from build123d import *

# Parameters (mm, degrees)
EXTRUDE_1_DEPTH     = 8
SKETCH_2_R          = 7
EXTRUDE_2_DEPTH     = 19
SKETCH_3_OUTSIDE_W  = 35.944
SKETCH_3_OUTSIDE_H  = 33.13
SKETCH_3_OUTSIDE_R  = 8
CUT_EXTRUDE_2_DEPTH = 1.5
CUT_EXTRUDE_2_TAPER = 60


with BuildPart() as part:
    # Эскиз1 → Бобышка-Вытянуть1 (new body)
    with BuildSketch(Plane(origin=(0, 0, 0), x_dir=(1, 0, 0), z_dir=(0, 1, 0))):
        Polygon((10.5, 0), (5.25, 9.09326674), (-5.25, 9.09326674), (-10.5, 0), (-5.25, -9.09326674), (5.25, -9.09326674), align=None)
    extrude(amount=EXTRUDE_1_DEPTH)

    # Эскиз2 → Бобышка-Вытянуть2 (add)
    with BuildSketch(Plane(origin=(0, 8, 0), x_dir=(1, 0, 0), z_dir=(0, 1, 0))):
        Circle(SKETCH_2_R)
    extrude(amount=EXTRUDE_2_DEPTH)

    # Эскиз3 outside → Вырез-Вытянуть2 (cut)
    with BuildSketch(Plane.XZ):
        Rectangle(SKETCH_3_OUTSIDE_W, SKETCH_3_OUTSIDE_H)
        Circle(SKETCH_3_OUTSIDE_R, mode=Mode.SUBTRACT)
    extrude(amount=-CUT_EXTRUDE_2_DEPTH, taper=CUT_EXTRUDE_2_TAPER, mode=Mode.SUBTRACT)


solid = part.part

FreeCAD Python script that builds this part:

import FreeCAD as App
import Part
import Sketcher

V = App.Vector
Q = App.Units.Quantity

doc = App.newDocument("Part")
params = doc.addObject("Spreadsheet::Sheet", "Params")
for row, (alias, value) in enumerate([
    ("sketch1_width", "10.5 mm"),
    ("pad1_length", "8 mm"),
    ("sketch2_diameter", "14 mm"),
    ("pad2_length", "19 mm"),
    ("sketch3_diameter", "16 mm"),
    ("sketch3_height", "33.13 mm"),
    ("pocket1_length", "1.5 mm"),
    ("pocket1_taper", "60 deg"),
], start=1):
    params.set(f"A{row}", alias)
    params.set(f"B{row}", "=" + value)
    params.setAlias(f"B{row}", alias)

body = doc.addObject("PartDesign::Body", "Body")

sketch1 = body.newObject("Sketcher::SketchObject", "Sketch")
sketch1.AttachmentSupport = (doc.getObject("XZ_Plane"), [""])
sketch1.MapMode = "FlatFace"
sketch1.addGeometry([
    Part.LineSegment(V(10, 0, 0), V(5, -9, 0)),
    Part.LineSegment(V(5, -9, 0), V(-5, -9, 0)),
    Part.LineSegment(V(-5, -9, 0), V(-10, 0, 0)),
    Part.LineSegment(V(-10, 0, 0), V(-5, 9, 0)),
    Part.LineSegment(V(-5, 9, 0), V(5, 9, 0)),
    Part.LineSegment(V(5, 9, 0), V(10, 0, 0)),
], False)
sketch1.addConstraint([
    Sketcher.Constraint("Coincident", 0, 2, 1, 1),
    Sketcher.Constraint("Coincident", 1, 2, 2, 1),
    Sketcher.Constraint("Coincident", 2, 2, 3, 1),
    Sketcher.Constraint("Coincident", 3, 2, 4, 1),
    Sketcher.Constraint("Coincident", 4, 2, 5, 1),
    Sketcher.Constraint("Coincident", 5, 2, 0, 1),
    Sketcher.Constraint("Horizontal", 1),
    Sketcher.Constraint("Horizontal", 4),
    Sketcher.Constraint("Symmetric", 0, 2, 3, 2, -1, 1),
    Sketcher.Constraint("Symmetric", 2, 2, 5, 2, -1, 1),
    Sketcher.Constraint("PointOnObject", 2, 2, -1),
    Sketcher.Constraint("Parallel", 2, 5),
    Sketcher.Constraint("Vertical", 1, 2, 3, 2),
    Sketcher.Constraint("Angle", 0, Q("-120 deg")),
    Sketcher.Constraint("DistanceX", 1, 2, 1, 1, 10.5),
    Sketcher.Constraint("DistanceX", 2, 2, 5, 2, 21.0),
])
sketch1.setExpression("Constraints[14]", "Params.sketch1_width")
pad1 = body.newObject("PartDesign::Pad", "Pad")
pad1.Profile = sketch1
pad1.setExpression("Length", "Params.pad1_length")
pad1.Reversed = True

sketch2 = body.newObject("Sketcher::SketchObject", "Sketch001")
sketch2.AttachmentSupport = (doc.getObject("XZ_Plane"), [""])
sketch2.MapMode = "FlatFace"
sketch2.AttachmentOffset = App.Placement(V(0, 0, -8), App.Rotation())
sketch2.addGeometry(Part.Circle(V(0, 0, 0), V(0, 0, 1), 7), False)
sketch2.addConstraint([
    Sketcher.Constraint("Coincident", 0, 3, -1, 1),
    Sketcher.Constraint("Diameter", 0, 14.0),
])
sketch2.setExpression("Constraints[1]", "Params.sketch2_diameter")
pad2 = body.newObject("PartDesign::Pad", "Pad001")
pad2.Profile = sketch2
pad2.setExpression("Length", "Params.pad2_length")
pad2.Reversed = True

sketch3 = body.newObject("Sketcher::SketchObject", "Sketch002")
sketch3.AttachmentSupport = (doc.getObject("XZ_Plane"), [""])
sketch3.MapMode = "FlatFace"
sketch3.addGeometry([
    Part.LineSegment(V(-18, 17, 0), V(-18, -17, 0)),
    Part.LineSegment(V(-18, -17, 0), V(18, -17, 0)),
    Part.LineSegment(V(18, -17, 0), V(18, 17, 0)),
    Part.LineSegment(V(18, 17, 0), V(-18, 17, 0)),
    Part.Circle(V(0, 0, 0), V(0, 0, 1), 8),
], False)
sketch3.addConstraint([
    Sketcher.Constraint("Coincident", 0, 2, 1, 1),
    Sketcher.Constraint("Coincident", 1, 2, 2, 1),
    Sketcher.Constraint("Coincident", 2, 2, 3, 1),
    Sketcher.Constraint("Coincident", 3, 2, 0, 1),
    Sketcher.Constraint("Vertical", 0),
    Sketcher.Constraint("Horizontal", 1),
    Sketcher.Constraint("Vertical", 2),
    Sketcher.Constraint("Horizontal", 3),
    Sketcher.Constraint("Coincident", 4, 3, -1, 1),
    Sketcher.Constraint("Symmetric", 0, 2, 2, 2, -1, 1),
    Sketcher.Constraint("Diameter", 4, 16.0),
    Sketcher.Constraint("DistanceY", 0, 2, 0, 1, 33.13),
    Sketcher.Constraint("DistanceX", 1, 1, 1, 2, 35.944),
])
sketch3.setExpression("Constraints[10]", "Params.sketch3_diameter")
sketch3.setExpression("Constraints[11]", "Params.sketch3_height")
pocket1 = body.newObject("PartDesign::Pocket", "Pocket")
pocket1.Profile = sketch3
pocket1.setExpression("Length", "Params.pocket1_length")
pocket1.setExpression("TaperAngle", "Params.pocket1_taper")

doc.recompute()
